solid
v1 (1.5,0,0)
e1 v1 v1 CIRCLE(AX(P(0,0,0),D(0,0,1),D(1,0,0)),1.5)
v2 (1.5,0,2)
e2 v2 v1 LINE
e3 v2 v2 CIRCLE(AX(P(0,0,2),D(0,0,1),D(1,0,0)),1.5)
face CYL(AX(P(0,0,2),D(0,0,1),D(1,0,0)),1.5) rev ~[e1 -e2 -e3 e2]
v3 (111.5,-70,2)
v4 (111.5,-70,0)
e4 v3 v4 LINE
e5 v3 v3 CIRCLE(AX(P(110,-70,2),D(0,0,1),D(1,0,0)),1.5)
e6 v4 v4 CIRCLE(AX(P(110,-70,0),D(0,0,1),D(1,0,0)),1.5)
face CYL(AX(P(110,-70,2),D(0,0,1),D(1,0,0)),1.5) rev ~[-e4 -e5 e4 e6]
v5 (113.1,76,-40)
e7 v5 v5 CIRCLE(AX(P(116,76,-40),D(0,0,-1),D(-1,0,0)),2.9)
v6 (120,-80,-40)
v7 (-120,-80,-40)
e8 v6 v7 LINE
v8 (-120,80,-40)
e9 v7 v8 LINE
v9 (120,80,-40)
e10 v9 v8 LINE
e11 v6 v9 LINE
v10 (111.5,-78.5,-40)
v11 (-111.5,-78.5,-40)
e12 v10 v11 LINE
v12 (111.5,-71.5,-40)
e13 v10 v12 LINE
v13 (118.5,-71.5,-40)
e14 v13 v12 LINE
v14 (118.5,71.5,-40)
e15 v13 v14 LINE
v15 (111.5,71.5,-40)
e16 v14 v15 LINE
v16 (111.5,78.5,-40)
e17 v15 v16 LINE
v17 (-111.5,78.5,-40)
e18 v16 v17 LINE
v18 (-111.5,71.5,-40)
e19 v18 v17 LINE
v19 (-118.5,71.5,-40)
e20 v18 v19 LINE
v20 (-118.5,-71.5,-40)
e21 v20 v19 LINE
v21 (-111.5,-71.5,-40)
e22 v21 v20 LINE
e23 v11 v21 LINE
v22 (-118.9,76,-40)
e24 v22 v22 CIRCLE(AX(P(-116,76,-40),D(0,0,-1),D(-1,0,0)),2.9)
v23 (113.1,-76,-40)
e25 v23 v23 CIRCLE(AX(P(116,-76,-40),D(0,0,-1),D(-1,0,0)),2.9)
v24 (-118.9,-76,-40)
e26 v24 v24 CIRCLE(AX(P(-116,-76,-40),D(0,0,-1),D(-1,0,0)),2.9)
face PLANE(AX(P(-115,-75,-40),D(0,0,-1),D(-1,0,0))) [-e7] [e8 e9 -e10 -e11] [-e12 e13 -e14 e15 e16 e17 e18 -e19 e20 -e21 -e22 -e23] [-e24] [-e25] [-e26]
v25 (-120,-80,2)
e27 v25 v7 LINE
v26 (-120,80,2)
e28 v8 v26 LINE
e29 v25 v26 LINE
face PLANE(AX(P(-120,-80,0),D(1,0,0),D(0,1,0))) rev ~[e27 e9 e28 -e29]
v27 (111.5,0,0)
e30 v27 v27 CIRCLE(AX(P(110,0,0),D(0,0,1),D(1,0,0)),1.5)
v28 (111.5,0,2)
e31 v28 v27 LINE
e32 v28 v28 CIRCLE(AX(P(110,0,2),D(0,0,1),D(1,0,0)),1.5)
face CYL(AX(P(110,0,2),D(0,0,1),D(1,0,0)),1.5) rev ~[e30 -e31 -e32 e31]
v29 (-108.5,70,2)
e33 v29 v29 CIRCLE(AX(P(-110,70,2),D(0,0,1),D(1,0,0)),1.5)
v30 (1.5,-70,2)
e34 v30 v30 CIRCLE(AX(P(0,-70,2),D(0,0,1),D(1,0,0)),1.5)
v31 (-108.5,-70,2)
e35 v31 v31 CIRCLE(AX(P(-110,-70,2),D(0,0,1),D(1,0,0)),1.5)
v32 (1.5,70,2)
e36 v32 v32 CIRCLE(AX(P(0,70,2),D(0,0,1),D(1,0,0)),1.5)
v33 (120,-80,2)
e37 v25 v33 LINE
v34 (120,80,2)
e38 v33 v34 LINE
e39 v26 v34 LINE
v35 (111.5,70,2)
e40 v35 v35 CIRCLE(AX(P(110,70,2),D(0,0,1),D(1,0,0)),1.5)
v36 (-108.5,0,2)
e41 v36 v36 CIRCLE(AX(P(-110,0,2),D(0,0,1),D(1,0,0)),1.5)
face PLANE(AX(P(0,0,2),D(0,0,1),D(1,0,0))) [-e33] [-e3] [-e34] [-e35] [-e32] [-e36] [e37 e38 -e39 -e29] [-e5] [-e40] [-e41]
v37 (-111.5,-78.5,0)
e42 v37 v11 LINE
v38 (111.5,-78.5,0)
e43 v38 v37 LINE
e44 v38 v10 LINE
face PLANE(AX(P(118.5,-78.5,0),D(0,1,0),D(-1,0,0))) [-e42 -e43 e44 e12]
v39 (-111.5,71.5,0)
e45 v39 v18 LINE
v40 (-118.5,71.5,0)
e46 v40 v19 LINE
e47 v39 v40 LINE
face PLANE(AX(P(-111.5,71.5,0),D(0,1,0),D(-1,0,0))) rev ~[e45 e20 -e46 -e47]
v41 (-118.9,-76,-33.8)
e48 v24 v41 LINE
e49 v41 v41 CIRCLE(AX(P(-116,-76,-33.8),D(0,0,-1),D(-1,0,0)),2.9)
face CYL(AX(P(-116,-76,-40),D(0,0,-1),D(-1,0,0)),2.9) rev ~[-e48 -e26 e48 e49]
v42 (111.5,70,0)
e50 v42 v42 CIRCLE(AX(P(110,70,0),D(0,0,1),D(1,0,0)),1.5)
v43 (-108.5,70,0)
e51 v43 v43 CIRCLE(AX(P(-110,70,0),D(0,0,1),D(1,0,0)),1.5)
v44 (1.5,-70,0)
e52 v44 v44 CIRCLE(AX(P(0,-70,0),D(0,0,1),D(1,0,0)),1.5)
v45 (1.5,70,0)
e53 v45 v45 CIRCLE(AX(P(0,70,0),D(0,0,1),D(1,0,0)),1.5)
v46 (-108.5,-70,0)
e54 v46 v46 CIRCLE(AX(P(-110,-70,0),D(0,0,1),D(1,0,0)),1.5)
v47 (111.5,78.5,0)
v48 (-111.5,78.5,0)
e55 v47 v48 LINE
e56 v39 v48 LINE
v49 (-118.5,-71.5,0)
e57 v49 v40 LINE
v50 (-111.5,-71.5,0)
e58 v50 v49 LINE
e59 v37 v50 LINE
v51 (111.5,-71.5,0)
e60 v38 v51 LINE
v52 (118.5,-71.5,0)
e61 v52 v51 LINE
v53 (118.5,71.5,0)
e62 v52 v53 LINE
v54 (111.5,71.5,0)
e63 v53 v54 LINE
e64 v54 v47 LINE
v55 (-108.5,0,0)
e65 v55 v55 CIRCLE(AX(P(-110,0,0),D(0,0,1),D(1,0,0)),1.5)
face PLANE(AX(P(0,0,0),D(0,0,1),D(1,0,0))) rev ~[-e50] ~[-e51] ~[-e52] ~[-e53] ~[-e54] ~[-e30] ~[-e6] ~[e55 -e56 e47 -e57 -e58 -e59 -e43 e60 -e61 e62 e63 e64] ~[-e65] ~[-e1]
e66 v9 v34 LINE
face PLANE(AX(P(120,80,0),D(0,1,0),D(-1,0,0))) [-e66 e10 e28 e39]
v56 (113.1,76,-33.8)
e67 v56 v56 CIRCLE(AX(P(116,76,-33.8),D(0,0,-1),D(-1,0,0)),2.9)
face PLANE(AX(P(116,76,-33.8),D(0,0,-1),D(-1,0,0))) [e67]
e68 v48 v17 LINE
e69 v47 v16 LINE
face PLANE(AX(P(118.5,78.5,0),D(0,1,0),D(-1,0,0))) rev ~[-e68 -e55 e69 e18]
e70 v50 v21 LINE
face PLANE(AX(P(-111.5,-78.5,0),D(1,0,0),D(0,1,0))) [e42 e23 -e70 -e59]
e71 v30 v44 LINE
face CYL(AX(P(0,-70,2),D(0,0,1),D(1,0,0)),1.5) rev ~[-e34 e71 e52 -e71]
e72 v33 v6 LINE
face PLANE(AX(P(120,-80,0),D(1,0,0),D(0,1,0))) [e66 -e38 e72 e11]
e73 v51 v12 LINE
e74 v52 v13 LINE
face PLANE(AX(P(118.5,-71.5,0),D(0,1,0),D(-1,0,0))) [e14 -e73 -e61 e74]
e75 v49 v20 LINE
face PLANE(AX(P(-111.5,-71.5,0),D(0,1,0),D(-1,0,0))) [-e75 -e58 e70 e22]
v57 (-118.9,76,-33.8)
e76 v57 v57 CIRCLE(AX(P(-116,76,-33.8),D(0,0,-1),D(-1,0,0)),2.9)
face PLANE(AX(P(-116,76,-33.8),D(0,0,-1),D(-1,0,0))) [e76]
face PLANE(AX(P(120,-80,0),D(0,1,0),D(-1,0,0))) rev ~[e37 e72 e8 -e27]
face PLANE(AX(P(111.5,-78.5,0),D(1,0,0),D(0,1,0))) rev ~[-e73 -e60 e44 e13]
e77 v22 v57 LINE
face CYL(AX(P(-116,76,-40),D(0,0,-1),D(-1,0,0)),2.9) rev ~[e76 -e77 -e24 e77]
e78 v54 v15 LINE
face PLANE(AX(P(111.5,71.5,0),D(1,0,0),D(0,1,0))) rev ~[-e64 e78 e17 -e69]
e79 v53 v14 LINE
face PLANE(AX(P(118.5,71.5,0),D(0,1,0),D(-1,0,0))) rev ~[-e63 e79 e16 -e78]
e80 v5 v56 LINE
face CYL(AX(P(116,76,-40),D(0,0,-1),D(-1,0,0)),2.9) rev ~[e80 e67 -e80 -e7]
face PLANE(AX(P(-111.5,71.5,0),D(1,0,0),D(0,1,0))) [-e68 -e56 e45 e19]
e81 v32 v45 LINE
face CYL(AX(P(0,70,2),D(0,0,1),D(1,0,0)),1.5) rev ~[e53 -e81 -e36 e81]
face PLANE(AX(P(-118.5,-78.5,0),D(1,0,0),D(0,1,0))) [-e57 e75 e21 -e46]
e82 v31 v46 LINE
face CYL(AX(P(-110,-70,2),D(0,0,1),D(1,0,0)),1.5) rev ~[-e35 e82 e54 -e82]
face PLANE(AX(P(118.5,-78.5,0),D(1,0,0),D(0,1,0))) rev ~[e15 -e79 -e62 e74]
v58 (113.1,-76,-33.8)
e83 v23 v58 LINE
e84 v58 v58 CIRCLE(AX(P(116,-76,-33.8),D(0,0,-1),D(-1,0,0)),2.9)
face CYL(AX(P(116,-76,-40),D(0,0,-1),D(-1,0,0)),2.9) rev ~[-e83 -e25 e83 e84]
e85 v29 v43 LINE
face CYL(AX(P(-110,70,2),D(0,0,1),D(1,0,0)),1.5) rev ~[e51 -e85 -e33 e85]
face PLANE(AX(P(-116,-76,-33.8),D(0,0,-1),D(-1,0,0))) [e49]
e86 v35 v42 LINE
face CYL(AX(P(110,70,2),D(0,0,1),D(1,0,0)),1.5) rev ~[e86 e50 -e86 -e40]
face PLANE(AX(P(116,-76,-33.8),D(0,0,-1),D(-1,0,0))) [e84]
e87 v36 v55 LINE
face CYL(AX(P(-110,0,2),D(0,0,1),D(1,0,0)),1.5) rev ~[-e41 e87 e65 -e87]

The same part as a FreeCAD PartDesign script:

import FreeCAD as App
import Part
import Sketcher

V = App.Vector

doc = App.newDocument("Part")
params = doc.addObject("Spreadsheet::Sheet", "Params")
for row, (alias, value) in enumerate([
    ("sketch1_width", "240 mm"),
    ("sketch1_height", "160 mm"),
    ("pad1_length", "2 mm"),
    ("sketch2_diameter", "3 mm"),
    ("pocket1_length", "4 mm"),
    ("sketch3_width", "240 mm"),
    ("sketch3_width2", "237 mm"),
    ("sketch3_height", "160 mm"),
    ("sketch3_height2", "157 mm"),
    ("pad2_length", "40 mm"),
    ("sketch4_width", "7 mm"),
    ("pad3_length", "40 mm"),
    ("sketch5_diameter", "5.8 mm"),
    ("pocket2_length", "6.2 mm"),
], start=1):
    params.set(f"A{row}", alias)
    params.set(f"B{row}", "=" + value)
    params.setAlias(f"B{row}", alias)

body = doc.addObject("PartDesign::Body", "Body")

sketch1 = body.newObject("Sketcher::SketchObject", "Sketch")
sketch1.AttachmentSupport = (doc.getObject("XY_Plane"), [""])
sketch1.MapMode = "FlatFace"
sketch1.addGeometry([
    Part.LineSegment(V(-120, 80, 0), V(-120, -80, 0)),
    Part.LineSegment(V(-120, -80, 0), V(120, -80, 0)),
    Part.LineSegment(V(120, -80, 0), V(120, 80, 0)),
    Part.LineSegment(V(120, 80, 0), V(-120, 80, 0)),
], False)
sketch1.addConstraint([
    Sketcher.Constraint("Coincident", 0, 2, 1, 1),
    Sketcher.Constraint("Coincident", 1, 2, 2, 1),
    Sketcher.Constraint("Coincident", 2, 2, 3, 1),
    Sketcher.Constraint("Coincident", 3, 2, 0, 1),
    Sketcher.Constraint("Vertical", 0),
    Sketcher.Constraint("Horizontal", 1),
    Sketcher.Constraint("Vertical", 2),
    Sketcher.Constraint("Horizontal", 3),
    Sketcher.Constraint("Symmetric", 0, 2, 2, 2, -1, 1),
    Sketcher.Constraint("DistanceX", 1, 1, 1, 2, 240.0),
    Sketcher.Constraint("DistanceY", 0, 2, 0, 1, 160.0),
])
sketch1.setExpression("Constraints[9]", "Params.sketch1_width")
sketch1.setExpression("Constraints[10]", "Params.sketch1_height")
pad1 = body.newObject("PartDesign::Pad", "Pad")
pad1.Profile = sketch1
pad1.setExpression("Length", "Params.pad1_length")

sketch2 = body.newObject("Sketcher::SketchObject", "Sketch001")
sketch2.AttachmentSupport = (doc.getObject("XY_Plane"), [""])
sketch2.MapMode = "FlatFace"
sketch2.AttachmentOffset = App.Placement(V(0, 0, 2), App.Rotation())
sketch2.addGeometry([
    Part.Circle(V(-110, 70, 0), V(0, 0, 1), 1.5),
    Part.Circle(V(0, 70, 0), V(0, 0, 1), 1.5),
    Part.Circle(V(110, 70, 0), V(0, 0, 1), 1.5),
    Part.Circle(V(0, 0, 0), V(0, 0, 1), 1.5),
    Part.Circle(V(110, 0, 0), V(0, 0, 1), 1.5),
    Part.Circle(V(0, -70, 0), V(0, 0, 1), 1.5),
    Part.Circle(V(110, -70, 0), V(0, 0, 1), 1.5),
    Part.Circle(V(-110, 0, 0), V(0, 0, 1), 1.5),
    Part.Circle(V(-110, -70, 0), V(0, 0, 1), 1.5),
], False)
sketch2.addConstraint([
    Sketcher.Constraint("Coincident", 3, 3, -1, 1),
    Sketcher.Constraint("Equal", 0, 1),
    Sketcher.Constraint("Equal", 1, 2),
    Sketcher.Constraint("Equal", 2, 3),
    Sketcher.Constraint("Equal", 3, 4),
    Sketcher.Constraint("Equal", 4, 5),
    Sketcher.Constraint("Equal", 5, 6),
    Sketcher.Constraint("Equal", 6, 7),
    Sketcher.Constraint("Equal", 7, 8),
    Sketcher.Constraint("Symmetric", 1, 3, 5, 3, -1, 1),
    Sketcher.Constraint("Symmetric", 0, 3, 6, 3, -1, 1),
    Sketcher.Constraint("Symmetric", 4, 3, 7, 3, -1, 1),
    Sketcher.Constraint("Symmetric", 2, 3, 8, 3, -1, 1),
    Sketcher.Constraint("Symmetric", 0, 3, 2, 3, -2),
    Sketcher.Constraint("PointOnObject", 1, 3, -2),
    Sketcher.Constraint("PointOnObject", 4, 3, -1),
    Sketcher.Constraint("Horizontal", 0, 3, 1, 3),
    Sketcher.Constraint("Vertical", 2, 3, 4, 3),
    Sketcher.Constraint("Diameter", 0, 3.0),
    Sketcher.Constraint("DistanceX", 0, 3, -1, 1, 110.0),
    Sketcher.Constraint("DistanceY", -1, 1, 0, 3, 70.0),
])
sketch2.setExpression("Constraints[18]", "Params.sketch2_diameter")
pocket1 = body.newObject("PartDesign::Pocket", "Pocket")
pocket1.Profile = sketch2
pocket1.setExpression("Length", "Params.pocket1_length")

sketch3 = body.newObject("Sketcher::SketchObject", "Sketch002")
sketch3.AttachmentSupport = (doc.getObject("XY_Plane"), [""])
sketch3.MapMode = "FlatFace"
sketch3.addGeometry([
    Part.LineSegment(V(120, 80, 0), V(120, -80, 0)),
    Part.LineSegment(V(120, -80, 0), V(-120, -80, 0)),
    Part.LineSegment(V(-120, -80, 0), V(-120, 80, 0)),
    Part.LineSegment(V(-120, 80, 0), V(120, 80, 0)),
    Part.LineSegment(V(-118.5, -78.5, 0), V(118.5, -78.5, 0)),
    Part.LineSegment(V(118.5, -78.5, 0), V(118.5, 78.5, 0)),
    Part.LineSegment(V(118.5, 78.5, 0), V(-118.5, 78.5, 0)),
    Part.LineSegment(V(-118.5, 78.5, 0), V(-118.5, -78.5, 0)),
], False)
sketch3.addConstraint([
    Sketcher.Constraint("Coincident", 0, 2, 1, 1),
    Sketcher.Constraint("Coincident", 1, 2, 2, 1),
    Sketcher.Constraint("Coincident", 2, 2, 3, 1),
    Sketcher.Constraint("Coincident", 3, 2, 0, 1),
    Sketcher.Constraint("Coincident", 4, 2, 5, 1),
    Sketcher.Constraint("Coincident", 5, 2, 6, 1),
    Sketcher.Constraint("Coincident", 6, 2, 7, 1),
    Sketcher.Constraint("Coincident", 7, 2, 4, 1),
    Sketcher.Constraint("Vertical", 0),
    Sketcher.Constraint("Horizontal", 1),
    Sketcher.Constraint("Vertical", 2),
    Sketcher.Constraint("Horizontal", 3),
    Sketcher.Constraint("Horizontal", 4),
    Sketcher.Constraint("Vertical", 5),
    Sketcher.Constraint("Horizontal", 6),
    Sketcher.Constraint("Vertical", 7),
    Sketcher.Constraint("Symmetric", 0, 2, 2, 2, -1, 1),
    Sketcher.Constraint("Symmetric", 4, 2, 6, 2, -1, 1),
    Sketcher.Constraint("DistanceX", 1, 2, 1, 1, 240.0),
    Sketcher.Constraint("DistanceX", 4, 1, 4, 2, 237.0),
    Sketcher.Constraint("DistanceY", 0, 2, 0, 1, 160.0),
    Sketcher.Constraint("DistanceY", 5, 1, 5, 2, 157.0),
])
sketch3.setExpression("Constraints[18]", "Params.sketch3_width")
sketch3.setExpression("Constraints[19]", "Params.sketch3_width2")
sketch3.setExpression("Constraints[20]", "Params.sketch3_height")
sketch3.setExpression("Constraints[21]", "Params.sketch3_height2")
pad2 = body.newObject("PartDesign::Pad", "Pad001")
pad2.Profile = sketch3
pad2.setExpression("Length", "Params.pad2_length")
pad2.Reversed = True

sketch4 = body.newObject("Sketcher::SketchObject", "Sketch003")
sketch4.AttachmentSupport = (doc.getObject("XY_Plane"), [""])
sketch4.MapMode = "FlatFace"
sketch4.addGeometry([
    Part.LineSegment(V(-111.5, -71.5, 0), V(-111.5, -78.5, 0)),
    Part.LineSegment(V(-111.5, -78.5, 0), V(-118.5, -78.5, 0)),
    Part.LineSegment(V(-118.5, -78.5, 0), V(-118.5, -71.5, 0)),
    Part.LineSegment(V(-118.5, -71.5, 0), V(-111.5, -71.5, 0)),
    Part.LineSegment(V(-111.5, 78.5, 0), V(-111.5, 71.5, 0)),
    Part.LineSegment(V(-111.5, 71.5, 0), V(-118.5, 71.5, 0)),
    Part.LineSegment(V(-118.5, 71.5, 0), V(-118.5, 78.5, 0)),
    Part.LineSegment(V(-118.5, 78.5, 0), V(-111.5, 78.5, 0)),
    Part.LineSegment(V(118.5, 78.5, 0), V(118.5, 71.5, 0)),
    Part.LineSegment(V(118.5, 71.5, 0), V(111.5, 71.5, 0)),
    Part.LineSegment(V(111.5, 71.5, 0), V(111.5, 78.5, 0)),
    Part.LineSegment(V(111.5, 78.5, 0), V(118.5, 78.5, 0)),
    Part.LineSegment(V(118.5, -71.5, 0), V(118.5, -78.5, 0)),
    Part.LineSegment(V(118.5, -78.5, 0), V(111.5, -78.5, 0)),
    Part.LineSegment(V(111.5, -78.5, 0), V(111.5, -71.5, 0)),
    Part.LineSegment(V(111.5, -71.5, 0), V(118.5, -71.5, 0)),
], False)
sketch4.addConstraint([
    Sketcher.Constraint("Coincident", 0, 2, 1, 1),
    Sketcher.Constraint("Coincident", 1, 2, 2, 1),
    Sketcher.Constraint("Coincident", 2, 2, 3, 1),
    Sketcher.Constraint("Coincident", 3, 2, 0, 1),
    Sketcher.Constraint("Coincident", 4, 2, 5, 1),
    Sketcher.Constraint("Coincident", 5, 2, 6, 1),
    Sketcher.Constraint("Coincident", 6, 2, 7, 1),
    Sketcher.Constraint("Coincident", 7, 2, 4, 1),
    Sketcher.Constraint("Coincident", 8, 2, 9, 1),
    Sketcher.Constraint("Coincident", 9, 2, 10, 1),
    Sketcher.Constraint("Coincident", 10, 2, 11, 1),
    Sketcher.Constraint("Coincident", 11, 2, 8, 1),
    Sketcher.Constraint("Coincident", 12, 2, 13, 1),
    Sketcher.Constraint("Coincident", 13, 2, 14, 1),
    Sketcher.Constraint("Coincident", 14, 2, 15, 1),
    Sketcher.Constraint("Coincident", 15, 2, 12, 1),
    Sketcher.Constraint("Vertical", 0),
    Sketcher.Constraint("Horizontal", 1),
    Sketcher.Constraint("Vertical", 2),
    Sketcher.Constraint("Horizontal", 3),
    Sketcher.Constraint("Vertical", 4),
    Sketcher.Constraint("Horizontal", 5),
    Sketcher.Constraint("Vertical", 6),
    Sketcher.Constraint("Horizontal", 7),
    Sketcher.Constraint("Vertical", 8),
    Sketcher.Constraint("Horizontal", 9),
    Sketcher.Constraint("Vertical", 10),
    Sketcher.Constraint("Horizontal", 11),
    Sketcher.Constraint("Vertical", 12),
    Sketcher.Constraint("Horizontal", 13),
    Sketcher.Constraint("Vertical", 14),
    Sketcher.Constraint("Horizontal", 15),
    Sketcher.Constraint("Symmetric", 2, 2, 8, 2, -1, 1),
    Sketcher.Constraint("Symmetric", 0, 2, 10, 2, -1, 1),
    Sketcher.Constraint("Symmetric", 6, 2, 12, 2, -1, 1),
    Sketcher.Constraint("Symmetric", 4, 2, 14, 2, -1, 1),
    Sketcher.Constraint("Symmetric", 5, 2, 8, 2, -2),
    Sketcher.Constraint("Symmetric", 7, 2, 10, 2, -2),
    Sketcher.Constraint("Equal", 15, 0),
    Sketcher.Constraint("DistanceX", 1, 2, 1, 1, 7.0),
    Sketcher.Constraint("DistanceY", 3, 2, 4, 2, 143.0),
    Sketcher.Constraint("DistanceX", 4, 2, 8, 2, 230.0),
])
sketch4.setExpression("Constraints[39]", "Params.sketch4_width")
pad3 = body.newObject("PartDesign::Pad", "Pad002")
pad3.Profile = sketch4
pad3.setExpression("Length", "Params.pad3_length")
pad3.Reversed = True

sketch5 = body.newObject("Sketcher::SketchObject", "Sketch004")
sketch5.AttachmentSupport = (doc.getObject("XY_Plane"), [""])
sketch5.MapMode = "FlatFace"
sketch5.AttachmentOffset = App.Placement(V(0, 0, -40), App.Rotation())
sketch5.addGeometry([
    Part.Circle(V(-116, -76, 0), V(0, 0, 1), 2.9),
    Part.Circle(V(-116, 76, 0), V(0, 0, 1), 2.9),
    Part.Circle(V(116, 76, 0), V(0, 0, 1), 2.9),
    Part.Circle(V(116, -76, 0), V(0, 0, 1), 2.9),
], False)
sketch5.addConstraint([
    Sketcher.Constraint("Equal", 0, 1),
    Sketcher.Constraint("Equal", 1, 2),
    Sketcher.Constraint("Equal", 2, 3),
    Sketcher.Constraint("Symmetric", 0, 3, 2, 3, -1, 1),
    Sketcher.Constraint("Symmetric", 1, 3, 3, 3, -1, 1),
    Sketcher.Constraint("Symmetric", 1, 3, 2, 3, -2),
    Sketcher.Constraint("Diameter", 0, 5.8),
    Sketcher.Constraint("DistanceX", 0, 3, -1, 1, 116.0),
    Sketcher.Constraint("DistanceY", 0, 3, -1, 1, 76.0),
])
sketch5.setExpression("Constraints[6]", "Params.sketch5_diameter")
pocket2 = body.newObject("PartDesign::Pocket", "Pocket001")
pocket2.Profile = sketch5
pocket2.setExpression("Length", "Params.pocket2_length")
pocket2.Reversed = True

doc.recompute()
